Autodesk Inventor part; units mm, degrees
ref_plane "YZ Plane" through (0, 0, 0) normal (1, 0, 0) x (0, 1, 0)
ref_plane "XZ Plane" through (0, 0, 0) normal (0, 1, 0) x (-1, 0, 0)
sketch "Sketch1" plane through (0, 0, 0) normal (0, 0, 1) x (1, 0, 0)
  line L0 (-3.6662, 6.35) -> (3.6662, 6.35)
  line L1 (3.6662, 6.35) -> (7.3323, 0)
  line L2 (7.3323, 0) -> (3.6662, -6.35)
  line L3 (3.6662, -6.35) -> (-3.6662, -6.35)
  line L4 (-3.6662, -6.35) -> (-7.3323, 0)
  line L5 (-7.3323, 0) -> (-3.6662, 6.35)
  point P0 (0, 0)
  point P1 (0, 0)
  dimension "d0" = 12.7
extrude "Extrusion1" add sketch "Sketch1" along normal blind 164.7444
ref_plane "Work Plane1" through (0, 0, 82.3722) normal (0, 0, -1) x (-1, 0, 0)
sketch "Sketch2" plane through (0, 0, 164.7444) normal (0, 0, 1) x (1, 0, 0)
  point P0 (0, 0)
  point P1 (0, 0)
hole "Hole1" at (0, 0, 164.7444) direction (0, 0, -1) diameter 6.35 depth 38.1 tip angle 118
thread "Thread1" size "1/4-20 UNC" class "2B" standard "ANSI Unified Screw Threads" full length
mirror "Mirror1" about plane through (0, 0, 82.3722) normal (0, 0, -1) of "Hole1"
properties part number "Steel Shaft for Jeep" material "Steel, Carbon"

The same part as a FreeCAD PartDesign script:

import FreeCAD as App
import Part
import Sketcher

V = App.Vector
Q = App.Units.Quantity

doc = App.newDocument("Part")
body = doc.addObject("PartDesign::Body", "Body")

sketch1 = body.newObject("Sketcher::SketchObject", "Sketch")
sketch1.AttachmentSupport = (doc.getObject("XY_Plane"), [""])
sketch1.MapMode = "FlatFace"
sketch1.addGeometry(Part.LineSegment(V(4, 6, 0), V(-4, 6, 0)), False)
sketch1.addGeometry(Part.LineSegment(V(-4, 6, 0), V(-7, 0, 0)), False)
sketch1.addGeometry(Part.LineSegment(V(-7, 0, 0), V(-4, -6, 0)), False)
sketch1.addGeometry(Part.LineSegment(V(-4, -6, 0), V(4, -6, 0)), False)
sketch1.addGeometry(Part.LineSegment(V(4, -6, 0), V(7, 0, 0)), False)
sketch1.addGeometry(Part.LineSegment(V(7, 0, 0), V(4, 6, 0)), False)
sketch1.addConstraint(Sketcher.Constraint("Coincident", 0, 2, 1, 1))
sketch1.addConstraint(Sketcher.Constraint("Coincident", 1, 2, 2, 1))
sketch1.addConstraint(Sketcher.Constraint("Coincident", 2, 2, 3, 1))
sketch1.addConstraint(Sketcher.Constraint("Coincident", 3, 2, 4, 1))
sketch1.addConstraint(Sketcher.Constraint("Coincident", 4, 2, 5, 1))
sketch1.addConstraint(Sketcher.Constraint("Coincident", 5, 2, 0, 1))
sketch1.addConstraint(Sketcher.Constraint("Horizontal", 0))
sketch1.addConstraint(Sketcher.Constraint("Horizontal", 3))
sketch1.addConstraint(Sketcher.Constraint("Symmetric", 0, 2, 3, 2, -1, 1))
sketch1.addConstraint(Sketcher.Constraint("Symmetric", 1, 2, 4, 2, -1, 1))
sketch1.addConstraint(Sketcher.Constraint("PointOnObject", 1, 2, -1))
sketch1.addConstraint(Sketcher.Constraint("Parallel", 2, 5))
sketch1.addConstraint(Sketcher.Constraint("Vertical", 0, 2, 2, 2))
sketch1.addConstraint(Sketcher.Constraint("DistanceY", 2, 2, 0, 2, Q("0.5 in")))
sketch1.addConstraint(Sketcher.Constraint("Angle", 1, Q("-119.9995 deg")))
sketch1.addConstraint(Sketcher.Constraint("DistanceX", 1, 2, 3, 2, Q("0.433 in")))
pad1 = body.newObject("PartDesign::Pad", "Pad")
pad1.Profile = sketch1
pad1.Length = Q("6.486 in")

sketch2 = body.newObject("Sketcher::SketchObject", "Sketch001")
sketch2.AttachmentSupport = (doc.getObject("XY_Plane"), [""])
sketch2.MapMode = "FlatFace"
sketch2.AttachmentOffset = App.Placement(V(0, 0, 6.486 * 25.4), App.Rotation())
sketch2.addGeometry(Part.Circle(V(0, 0, 0), V(0, 0, 1), 3.2), False)
sketch2.addConstraint(Sketcher.Constraint("Coincident", 0, 3, -1, 1))
sketch2.addConstraint(Sketcher.Constraint("Diameter", 0, Q("0.25 in")))
doc.recompute()
hole = body.newObject("PartDesign::Hole", "Hole")
hole.Profile = sketch2
hole.ThreadType = "None"
hole.Diameter = Q("0.25 in")
hole.DepthType = "Dimension"
hole.Depth = Q("1.5 in")
hole.DrillPoint = "Angled"
hole.DrillPointAngle = 118
doc.recompute()

datumplane = body.newObject("PartDesign::Plane", "DatumPlane")
datumplane.AttachmentSupport = (doc.getObject("XY_Plane"), [""])
datumplane.MapMode = "FlatFace"
datumplane.AttachmentOffset = App.Placement(V(0, 0, 3.243 * 25.4), App.Rotation())
mirrored = body.newObject("PartDesign::Mirrored", "Mirrored")
mirrored.Originals = [hole]
mirrored.MirrorPlane = (datumplane, [""])
body.Tip = mirrored

doc.recompute()
